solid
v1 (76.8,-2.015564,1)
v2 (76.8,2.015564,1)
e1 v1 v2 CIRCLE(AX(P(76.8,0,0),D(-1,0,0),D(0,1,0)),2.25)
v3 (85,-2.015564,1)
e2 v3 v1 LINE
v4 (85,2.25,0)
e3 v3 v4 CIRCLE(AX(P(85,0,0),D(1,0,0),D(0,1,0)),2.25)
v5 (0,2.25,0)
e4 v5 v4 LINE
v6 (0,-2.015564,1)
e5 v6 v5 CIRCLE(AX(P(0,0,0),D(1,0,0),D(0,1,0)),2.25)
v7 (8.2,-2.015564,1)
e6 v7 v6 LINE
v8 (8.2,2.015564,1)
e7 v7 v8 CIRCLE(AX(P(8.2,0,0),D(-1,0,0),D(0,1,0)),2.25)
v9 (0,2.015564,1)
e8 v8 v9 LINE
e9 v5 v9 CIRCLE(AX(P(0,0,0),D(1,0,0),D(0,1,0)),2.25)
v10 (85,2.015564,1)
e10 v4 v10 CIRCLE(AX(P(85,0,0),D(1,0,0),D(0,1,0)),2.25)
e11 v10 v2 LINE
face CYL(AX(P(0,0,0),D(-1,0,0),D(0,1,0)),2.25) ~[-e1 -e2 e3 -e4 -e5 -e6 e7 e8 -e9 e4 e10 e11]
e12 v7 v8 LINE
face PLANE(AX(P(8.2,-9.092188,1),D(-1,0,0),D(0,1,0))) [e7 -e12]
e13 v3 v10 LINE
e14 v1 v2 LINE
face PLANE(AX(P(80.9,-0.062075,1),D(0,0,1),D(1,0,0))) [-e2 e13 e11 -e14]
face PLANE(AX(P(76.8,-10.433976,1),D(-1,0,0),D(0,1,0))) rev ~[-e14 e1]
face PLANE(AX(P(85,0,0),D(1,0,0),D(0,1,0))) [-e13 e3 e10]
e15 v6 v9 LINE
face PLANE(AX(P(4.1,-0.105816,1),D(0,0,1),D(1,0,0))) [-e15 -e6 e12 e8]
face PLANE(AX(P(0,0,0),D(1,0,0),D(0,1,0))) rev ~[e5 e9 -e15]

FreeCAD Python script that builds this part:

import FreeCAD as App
import Part
import Sketcher
from FreeCAD import Vector

doc = App.newDocument("Part")
body = doc.addObject("PartDesign::Body", "Body")

sketch1 = body.newObject("Sketcher::SketchObject", "Sketch")
sketch1.AttachmentSupport = (doc.getObject("YZ_Plane"), [""])
sketch1.MapMode = "FlatFace"
sketch1.addGeometry(Part.Circle(Vector(0, 0, 0), Vector(0, 0, 1), 2.2), False)
sketch1.addConstraint(Sketcher.Constraint("Coincident", 0, 3, -1, 1))
sketch1.addConstraint(Sketcher.Constraint("Diameter", 0, 4.5))
pad1 = body.newObject("PartDesign::Pad", "Pad")
pad1.Profile = sketch1
pad1.Length = 85

sketch2 = body.newObject("Sketcher::SketchObject", "Sketch001")
sketch2.AttachmentSupport = (doc.getObject("XY_Plane"), [""])
sketch2.MapMode = "FlatFace"
sketch2.AttachmentOffset = App.Placement(Vector(0, 0, 1), App.Rotation())
sketch2.addGeometry(Part.LineSegment(Vector(0, 9, 0), Vector(0, -9, 0)), False)
sketch2.addGeometry(Part.LineSegment(Vector(0, -9, 0), Vector(8, -9, 0)), False)
sketch2.addGeometry(Part.LineSegment(Vector(8, -9, 0), Vector(8, 9, 0)), False)
sketch2.addGeometry(Part.LineSegment(Vector(8, 9, 0), Vector(0, 9, 0)), False)
sketch2.addGeometry(Part.LineSegment(Vector(77, 10, 0), Vector(77, -10, 0)), False)
sketch2.addGeometry(Part.LineSegment(Vector(77, -10, 0), Vector(85, -10, 0)), False)
sketch2.addGeometry(Part.LineSegment(Vector(85, -10, 0), Vector(85, 10, 0)), False)
sketch2.addGeometry(Part.LineSegment(Vector(85, 10, 0), Vector(77, 10, 0)), False)
sketch2.addConstraint(Sketcher.Constraint("Coincident", 0, 2, 1, 1))
sketch2.addConstraint(Sketcher.Constraint("Coincident", 1, 2, 2, 1))
sketch2.addConstraint(Sketcher.Constraint("Coincident", 2, 2, 3, 1))
sketch2.addConstraint(Sketcher.Constraint("Coincident", 3, 2, 0, 1))
sketch2.addConstraint(Sketcher.Constraint("Coincident", 4, 2, 5, 1))
sketch2.addConstraint(Sketcher.Constraint("Coincident", 5, 2, 6, 1))
sketch2.addConstraint(Sketcher.Constraint("Coincident", 6, 2, 7, 1))
sketch2.addConstraint(Sketcher.Constraint("Coincident", 7, 2, 4, 1))
sketch2.addConstraint(Sketcher.Constraint("Vertical", 0))
sketch2.addConstraint(Sketcher.Constraint("Horizontal", 1))
sketch2.addConstraint(Sketcher.Constraint("Vertical", 2))
sketch2.addConstraint(Sketcher.Constraint("Horizontal", 3))
sketch2.addConstraint(Sketcher.Constraint("Vertical", 4))
sketch2.addConstraint(Sketcher.Constraint("Horizontal", 5))
sketch2.addConstraint(Sketcher.Constraint("Vertical", 6))
sketch2.addConstraint(Sketcher.Constraint("Horizontal", 7))
sketch2.addConstraint(Sketcher.Constraint("PointOnObject", 0, 2, -2))
sketch2.addConstraint(Sketcher.Constraint("Equal", 3, 5))
sketch2.addConstraint(Sketcher.Constraint("DistanceX", 1, 1, 1, 2, 8.2))
sketch2.addConstraint(Sketcher.Constraint("DistanceX", -1, 1, 5, 2, 85.0))
sketch2.addConstraint(Sketcher.Constraint("DistanceY", 4, 2, 4, 1, 20.743802))
sketch2.addConstraint(Sketcher.Constraint("DistanceY", 0, 2, 0, 1, 17.972744))
sketch2.addConstraint(Sketcher.Constraint("DistanceY", 4, 2, 2, 2, 19.314532))
sketch2.addConstraint(Sketcher.Constraint("DistanceY", 0, 2, -1, 1, 9.092188))
pocket1 = body.newObject("PartDesign::Pocket", "Pocket")
pocket1.Profile = sketch2
pocket1.Length = 25
pocket1.Reversed = True

doc.recompute()
